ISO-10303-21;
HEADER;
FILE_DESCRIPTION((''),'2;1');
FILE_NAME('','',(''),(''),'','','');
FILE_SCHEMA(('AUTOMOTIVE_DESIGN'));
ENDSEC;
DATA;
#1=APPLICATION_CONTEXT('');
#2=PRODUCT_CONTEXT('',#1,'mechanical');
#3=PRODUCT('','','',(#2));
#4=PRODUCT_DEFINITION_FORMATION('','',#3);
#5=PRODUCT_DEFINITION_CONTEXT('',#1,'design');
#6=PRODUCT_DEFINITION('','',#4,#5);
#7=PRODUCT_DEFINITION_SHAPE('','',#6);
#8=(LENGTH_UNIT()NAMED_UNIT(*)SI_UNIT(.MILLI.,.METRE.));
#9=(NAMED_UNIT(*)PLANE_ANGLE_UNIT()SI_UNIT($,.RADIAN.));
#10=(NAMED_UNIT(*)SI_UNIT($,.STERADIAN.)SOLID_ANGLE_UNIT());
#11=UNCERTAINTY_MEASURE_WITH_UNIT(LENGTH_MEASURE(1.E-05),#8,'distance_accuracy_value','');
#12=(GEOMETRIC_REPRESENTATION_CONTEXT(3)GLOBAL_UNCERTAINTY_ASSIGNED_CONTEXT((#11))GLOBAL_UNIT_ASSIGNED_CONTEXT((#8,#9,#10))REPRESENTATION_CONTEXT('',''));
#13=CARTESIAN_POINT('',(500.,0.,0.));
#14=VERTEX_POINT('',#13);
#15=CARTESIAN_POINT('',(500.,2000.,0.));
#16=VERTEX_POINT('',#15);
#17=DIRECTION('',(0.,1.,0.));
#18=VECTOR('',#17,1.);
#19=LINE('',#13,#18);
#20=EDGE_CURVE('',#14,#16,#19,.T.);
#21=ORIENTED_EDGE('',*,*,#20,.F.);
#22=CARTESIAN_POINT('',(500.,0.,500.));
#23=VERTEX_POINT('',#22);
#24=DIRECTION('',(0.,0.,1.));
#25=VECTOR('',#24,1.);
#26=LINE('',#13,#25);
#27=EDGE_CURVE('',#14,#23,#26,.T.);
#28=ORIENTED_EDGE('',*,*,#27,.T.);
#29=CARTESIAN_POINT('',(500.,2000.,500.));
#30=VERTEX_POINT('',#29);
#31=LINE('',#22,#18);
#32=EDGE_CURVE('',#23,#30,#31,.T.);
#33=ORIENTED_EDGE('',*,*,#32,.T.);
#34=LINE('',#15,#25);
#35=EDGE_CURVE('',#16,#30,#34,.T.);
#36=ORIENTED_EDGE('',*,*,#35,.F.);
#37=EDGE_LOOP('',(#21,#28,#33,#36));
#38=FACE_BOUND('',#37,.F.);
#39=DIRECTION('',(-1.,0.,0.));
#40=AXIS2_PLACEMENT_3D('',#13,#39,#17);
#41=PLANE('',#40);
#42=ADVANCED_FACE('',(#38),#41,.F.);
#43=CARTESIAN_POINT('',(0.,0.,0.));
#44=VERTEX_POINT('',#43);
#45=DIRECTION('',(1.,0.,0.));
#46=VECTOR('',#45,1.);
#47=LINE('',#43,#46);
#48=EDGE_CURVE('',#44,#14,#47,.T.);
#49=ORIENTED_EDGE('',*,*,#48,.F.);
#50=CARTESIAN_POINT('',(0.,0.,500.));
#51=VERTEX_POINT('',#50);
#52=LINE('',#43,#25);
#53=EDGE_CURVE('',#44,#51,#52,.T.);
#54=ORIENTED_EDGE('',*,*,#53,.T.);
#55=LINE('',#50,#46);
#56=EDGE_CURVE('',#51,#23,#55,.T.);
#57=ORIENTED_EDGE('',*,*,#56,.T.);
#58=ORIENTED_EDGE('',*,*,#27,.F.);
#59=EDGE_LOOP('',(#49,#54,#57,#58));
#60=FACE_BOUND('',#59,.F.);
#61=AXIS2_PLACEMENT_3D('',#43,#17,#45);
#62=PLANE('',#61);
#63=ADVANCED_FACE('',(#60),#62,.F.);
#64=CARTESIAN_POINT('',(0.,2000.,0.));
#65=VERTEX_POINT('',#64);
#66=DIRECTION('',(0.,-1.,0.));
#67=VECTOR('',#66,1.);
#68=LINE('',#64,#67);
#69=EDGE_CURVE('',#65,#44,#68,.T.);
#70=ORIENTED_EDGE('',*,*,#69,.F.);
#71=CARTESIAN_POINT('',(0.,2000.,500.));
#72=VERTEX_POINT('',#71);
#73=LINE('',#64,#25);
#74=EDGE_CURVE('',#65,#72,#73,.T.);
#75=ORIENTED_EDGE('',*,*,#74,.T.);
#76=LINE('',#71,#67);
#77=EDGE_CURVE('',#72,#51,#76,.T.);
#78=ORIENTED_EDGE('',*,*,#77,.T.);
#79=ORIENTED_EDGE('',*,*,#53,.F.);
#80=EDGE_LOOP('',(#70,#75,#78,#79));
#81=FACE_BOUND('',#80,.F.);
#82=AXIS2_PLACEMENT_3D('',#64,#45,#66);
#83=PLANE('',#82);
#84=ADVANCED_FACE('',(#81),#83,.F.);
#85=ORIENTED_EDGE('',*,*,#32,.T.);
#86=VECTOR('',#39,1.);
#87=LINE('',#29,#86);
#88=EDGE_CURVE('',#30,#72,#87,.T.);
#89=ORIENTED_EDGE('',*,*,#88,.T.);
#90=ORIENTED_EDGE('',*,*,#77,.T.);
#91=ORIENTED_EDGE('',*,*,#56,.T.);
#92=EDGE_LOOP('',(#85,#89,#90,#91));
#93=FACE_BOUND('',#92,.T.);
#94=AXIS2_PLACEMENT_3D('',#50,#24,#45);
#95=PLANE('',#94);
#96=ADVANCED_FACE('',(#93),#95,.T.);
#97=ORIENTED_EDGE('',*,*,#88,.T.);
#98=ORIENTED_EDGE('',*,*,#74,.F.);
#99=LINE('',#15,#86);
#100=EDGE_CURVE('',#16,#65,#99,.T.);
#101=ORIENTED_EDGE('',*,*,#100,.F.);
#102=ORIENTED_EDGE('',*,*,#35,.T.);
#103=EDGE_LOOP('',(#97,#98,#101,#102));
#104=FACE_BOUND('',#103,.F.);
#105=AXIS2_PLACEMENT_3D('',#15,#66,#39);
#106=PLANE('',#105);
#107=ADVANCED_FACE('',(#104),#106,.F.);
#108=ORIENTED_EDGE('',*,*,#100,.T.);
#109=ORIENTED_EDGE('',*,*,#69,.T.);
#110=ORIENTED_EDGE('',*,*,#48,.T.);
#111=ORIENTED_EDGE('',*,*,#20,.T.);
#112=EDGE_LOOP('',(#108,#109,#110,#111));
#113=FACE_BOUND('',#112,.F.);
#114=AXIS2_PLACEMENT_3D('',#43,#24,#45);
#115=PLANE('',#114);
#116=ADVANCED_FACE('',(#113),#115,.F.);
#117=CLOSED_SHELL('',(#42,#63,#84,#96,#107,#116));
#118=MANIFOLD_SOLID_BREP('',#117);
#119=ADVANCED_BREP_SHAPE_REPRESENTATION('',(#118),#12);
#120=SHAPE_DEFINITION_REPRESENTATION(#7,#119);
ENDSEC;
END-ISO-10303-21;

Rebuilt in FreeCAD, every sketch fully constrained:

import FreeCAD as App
import Part
import Sketcher
Q = App.Units.Quantity


def add_polygon(sketch, points):
    """Adds a closed chain of lines whose ends are joined by coincident constraints."""
    first, n = sketch.GeometryCount, len(points)
    for a, b in zip(points, points[1:] + points[:1]):
        sketch.addGeometry(Part.LineSegment(App.Vector(*a, 0), App.Vector(*b, 0)), False)
    for i in range(n):
        sketch.addConstraint(Sketcher.Constraint("Coincident", first + i, 2, first + (i + 1) % n, 1))

doc = App.newDocument("Part")
body = doc.addObject("PartDesign::Body", "Body")

sketch1 = body.newObject("Sketcher::SketchObject", "Sketch")
sketch1.AttachmentSupport = (doc.getObject("XY_Plane"), [""])
sketch1.MapMode = "FlatFace"
add_polygon(sketch1, [(0, 2000), (0, 0), (500, 0), (500, 2000)])
sketch1.addConstraint([
    Sketcher.Constraint("Vertical", 0),
    Sketcher.Constraint("Horizontal", 1),
    Sketcher.Constraint("Vertical", 2),
    Sketcher.Constraint("Horizontal", 3),
    Sketcher.Constraint("Coincident", 0, 2, -1, 1),
    Sketcher.Constraint("DistanceX", 1, 1, 1, 2, Q("500 mm")),
    Sketcher.Constraint("DistanceY", 0, 2, 0, 1, Q("2000 mm")),
])
pad1 = body.newObject("PartDesign::Pad", "Pad")
pad1.Profile = sketch1
pad1.Length = 500

doc.recompute()
